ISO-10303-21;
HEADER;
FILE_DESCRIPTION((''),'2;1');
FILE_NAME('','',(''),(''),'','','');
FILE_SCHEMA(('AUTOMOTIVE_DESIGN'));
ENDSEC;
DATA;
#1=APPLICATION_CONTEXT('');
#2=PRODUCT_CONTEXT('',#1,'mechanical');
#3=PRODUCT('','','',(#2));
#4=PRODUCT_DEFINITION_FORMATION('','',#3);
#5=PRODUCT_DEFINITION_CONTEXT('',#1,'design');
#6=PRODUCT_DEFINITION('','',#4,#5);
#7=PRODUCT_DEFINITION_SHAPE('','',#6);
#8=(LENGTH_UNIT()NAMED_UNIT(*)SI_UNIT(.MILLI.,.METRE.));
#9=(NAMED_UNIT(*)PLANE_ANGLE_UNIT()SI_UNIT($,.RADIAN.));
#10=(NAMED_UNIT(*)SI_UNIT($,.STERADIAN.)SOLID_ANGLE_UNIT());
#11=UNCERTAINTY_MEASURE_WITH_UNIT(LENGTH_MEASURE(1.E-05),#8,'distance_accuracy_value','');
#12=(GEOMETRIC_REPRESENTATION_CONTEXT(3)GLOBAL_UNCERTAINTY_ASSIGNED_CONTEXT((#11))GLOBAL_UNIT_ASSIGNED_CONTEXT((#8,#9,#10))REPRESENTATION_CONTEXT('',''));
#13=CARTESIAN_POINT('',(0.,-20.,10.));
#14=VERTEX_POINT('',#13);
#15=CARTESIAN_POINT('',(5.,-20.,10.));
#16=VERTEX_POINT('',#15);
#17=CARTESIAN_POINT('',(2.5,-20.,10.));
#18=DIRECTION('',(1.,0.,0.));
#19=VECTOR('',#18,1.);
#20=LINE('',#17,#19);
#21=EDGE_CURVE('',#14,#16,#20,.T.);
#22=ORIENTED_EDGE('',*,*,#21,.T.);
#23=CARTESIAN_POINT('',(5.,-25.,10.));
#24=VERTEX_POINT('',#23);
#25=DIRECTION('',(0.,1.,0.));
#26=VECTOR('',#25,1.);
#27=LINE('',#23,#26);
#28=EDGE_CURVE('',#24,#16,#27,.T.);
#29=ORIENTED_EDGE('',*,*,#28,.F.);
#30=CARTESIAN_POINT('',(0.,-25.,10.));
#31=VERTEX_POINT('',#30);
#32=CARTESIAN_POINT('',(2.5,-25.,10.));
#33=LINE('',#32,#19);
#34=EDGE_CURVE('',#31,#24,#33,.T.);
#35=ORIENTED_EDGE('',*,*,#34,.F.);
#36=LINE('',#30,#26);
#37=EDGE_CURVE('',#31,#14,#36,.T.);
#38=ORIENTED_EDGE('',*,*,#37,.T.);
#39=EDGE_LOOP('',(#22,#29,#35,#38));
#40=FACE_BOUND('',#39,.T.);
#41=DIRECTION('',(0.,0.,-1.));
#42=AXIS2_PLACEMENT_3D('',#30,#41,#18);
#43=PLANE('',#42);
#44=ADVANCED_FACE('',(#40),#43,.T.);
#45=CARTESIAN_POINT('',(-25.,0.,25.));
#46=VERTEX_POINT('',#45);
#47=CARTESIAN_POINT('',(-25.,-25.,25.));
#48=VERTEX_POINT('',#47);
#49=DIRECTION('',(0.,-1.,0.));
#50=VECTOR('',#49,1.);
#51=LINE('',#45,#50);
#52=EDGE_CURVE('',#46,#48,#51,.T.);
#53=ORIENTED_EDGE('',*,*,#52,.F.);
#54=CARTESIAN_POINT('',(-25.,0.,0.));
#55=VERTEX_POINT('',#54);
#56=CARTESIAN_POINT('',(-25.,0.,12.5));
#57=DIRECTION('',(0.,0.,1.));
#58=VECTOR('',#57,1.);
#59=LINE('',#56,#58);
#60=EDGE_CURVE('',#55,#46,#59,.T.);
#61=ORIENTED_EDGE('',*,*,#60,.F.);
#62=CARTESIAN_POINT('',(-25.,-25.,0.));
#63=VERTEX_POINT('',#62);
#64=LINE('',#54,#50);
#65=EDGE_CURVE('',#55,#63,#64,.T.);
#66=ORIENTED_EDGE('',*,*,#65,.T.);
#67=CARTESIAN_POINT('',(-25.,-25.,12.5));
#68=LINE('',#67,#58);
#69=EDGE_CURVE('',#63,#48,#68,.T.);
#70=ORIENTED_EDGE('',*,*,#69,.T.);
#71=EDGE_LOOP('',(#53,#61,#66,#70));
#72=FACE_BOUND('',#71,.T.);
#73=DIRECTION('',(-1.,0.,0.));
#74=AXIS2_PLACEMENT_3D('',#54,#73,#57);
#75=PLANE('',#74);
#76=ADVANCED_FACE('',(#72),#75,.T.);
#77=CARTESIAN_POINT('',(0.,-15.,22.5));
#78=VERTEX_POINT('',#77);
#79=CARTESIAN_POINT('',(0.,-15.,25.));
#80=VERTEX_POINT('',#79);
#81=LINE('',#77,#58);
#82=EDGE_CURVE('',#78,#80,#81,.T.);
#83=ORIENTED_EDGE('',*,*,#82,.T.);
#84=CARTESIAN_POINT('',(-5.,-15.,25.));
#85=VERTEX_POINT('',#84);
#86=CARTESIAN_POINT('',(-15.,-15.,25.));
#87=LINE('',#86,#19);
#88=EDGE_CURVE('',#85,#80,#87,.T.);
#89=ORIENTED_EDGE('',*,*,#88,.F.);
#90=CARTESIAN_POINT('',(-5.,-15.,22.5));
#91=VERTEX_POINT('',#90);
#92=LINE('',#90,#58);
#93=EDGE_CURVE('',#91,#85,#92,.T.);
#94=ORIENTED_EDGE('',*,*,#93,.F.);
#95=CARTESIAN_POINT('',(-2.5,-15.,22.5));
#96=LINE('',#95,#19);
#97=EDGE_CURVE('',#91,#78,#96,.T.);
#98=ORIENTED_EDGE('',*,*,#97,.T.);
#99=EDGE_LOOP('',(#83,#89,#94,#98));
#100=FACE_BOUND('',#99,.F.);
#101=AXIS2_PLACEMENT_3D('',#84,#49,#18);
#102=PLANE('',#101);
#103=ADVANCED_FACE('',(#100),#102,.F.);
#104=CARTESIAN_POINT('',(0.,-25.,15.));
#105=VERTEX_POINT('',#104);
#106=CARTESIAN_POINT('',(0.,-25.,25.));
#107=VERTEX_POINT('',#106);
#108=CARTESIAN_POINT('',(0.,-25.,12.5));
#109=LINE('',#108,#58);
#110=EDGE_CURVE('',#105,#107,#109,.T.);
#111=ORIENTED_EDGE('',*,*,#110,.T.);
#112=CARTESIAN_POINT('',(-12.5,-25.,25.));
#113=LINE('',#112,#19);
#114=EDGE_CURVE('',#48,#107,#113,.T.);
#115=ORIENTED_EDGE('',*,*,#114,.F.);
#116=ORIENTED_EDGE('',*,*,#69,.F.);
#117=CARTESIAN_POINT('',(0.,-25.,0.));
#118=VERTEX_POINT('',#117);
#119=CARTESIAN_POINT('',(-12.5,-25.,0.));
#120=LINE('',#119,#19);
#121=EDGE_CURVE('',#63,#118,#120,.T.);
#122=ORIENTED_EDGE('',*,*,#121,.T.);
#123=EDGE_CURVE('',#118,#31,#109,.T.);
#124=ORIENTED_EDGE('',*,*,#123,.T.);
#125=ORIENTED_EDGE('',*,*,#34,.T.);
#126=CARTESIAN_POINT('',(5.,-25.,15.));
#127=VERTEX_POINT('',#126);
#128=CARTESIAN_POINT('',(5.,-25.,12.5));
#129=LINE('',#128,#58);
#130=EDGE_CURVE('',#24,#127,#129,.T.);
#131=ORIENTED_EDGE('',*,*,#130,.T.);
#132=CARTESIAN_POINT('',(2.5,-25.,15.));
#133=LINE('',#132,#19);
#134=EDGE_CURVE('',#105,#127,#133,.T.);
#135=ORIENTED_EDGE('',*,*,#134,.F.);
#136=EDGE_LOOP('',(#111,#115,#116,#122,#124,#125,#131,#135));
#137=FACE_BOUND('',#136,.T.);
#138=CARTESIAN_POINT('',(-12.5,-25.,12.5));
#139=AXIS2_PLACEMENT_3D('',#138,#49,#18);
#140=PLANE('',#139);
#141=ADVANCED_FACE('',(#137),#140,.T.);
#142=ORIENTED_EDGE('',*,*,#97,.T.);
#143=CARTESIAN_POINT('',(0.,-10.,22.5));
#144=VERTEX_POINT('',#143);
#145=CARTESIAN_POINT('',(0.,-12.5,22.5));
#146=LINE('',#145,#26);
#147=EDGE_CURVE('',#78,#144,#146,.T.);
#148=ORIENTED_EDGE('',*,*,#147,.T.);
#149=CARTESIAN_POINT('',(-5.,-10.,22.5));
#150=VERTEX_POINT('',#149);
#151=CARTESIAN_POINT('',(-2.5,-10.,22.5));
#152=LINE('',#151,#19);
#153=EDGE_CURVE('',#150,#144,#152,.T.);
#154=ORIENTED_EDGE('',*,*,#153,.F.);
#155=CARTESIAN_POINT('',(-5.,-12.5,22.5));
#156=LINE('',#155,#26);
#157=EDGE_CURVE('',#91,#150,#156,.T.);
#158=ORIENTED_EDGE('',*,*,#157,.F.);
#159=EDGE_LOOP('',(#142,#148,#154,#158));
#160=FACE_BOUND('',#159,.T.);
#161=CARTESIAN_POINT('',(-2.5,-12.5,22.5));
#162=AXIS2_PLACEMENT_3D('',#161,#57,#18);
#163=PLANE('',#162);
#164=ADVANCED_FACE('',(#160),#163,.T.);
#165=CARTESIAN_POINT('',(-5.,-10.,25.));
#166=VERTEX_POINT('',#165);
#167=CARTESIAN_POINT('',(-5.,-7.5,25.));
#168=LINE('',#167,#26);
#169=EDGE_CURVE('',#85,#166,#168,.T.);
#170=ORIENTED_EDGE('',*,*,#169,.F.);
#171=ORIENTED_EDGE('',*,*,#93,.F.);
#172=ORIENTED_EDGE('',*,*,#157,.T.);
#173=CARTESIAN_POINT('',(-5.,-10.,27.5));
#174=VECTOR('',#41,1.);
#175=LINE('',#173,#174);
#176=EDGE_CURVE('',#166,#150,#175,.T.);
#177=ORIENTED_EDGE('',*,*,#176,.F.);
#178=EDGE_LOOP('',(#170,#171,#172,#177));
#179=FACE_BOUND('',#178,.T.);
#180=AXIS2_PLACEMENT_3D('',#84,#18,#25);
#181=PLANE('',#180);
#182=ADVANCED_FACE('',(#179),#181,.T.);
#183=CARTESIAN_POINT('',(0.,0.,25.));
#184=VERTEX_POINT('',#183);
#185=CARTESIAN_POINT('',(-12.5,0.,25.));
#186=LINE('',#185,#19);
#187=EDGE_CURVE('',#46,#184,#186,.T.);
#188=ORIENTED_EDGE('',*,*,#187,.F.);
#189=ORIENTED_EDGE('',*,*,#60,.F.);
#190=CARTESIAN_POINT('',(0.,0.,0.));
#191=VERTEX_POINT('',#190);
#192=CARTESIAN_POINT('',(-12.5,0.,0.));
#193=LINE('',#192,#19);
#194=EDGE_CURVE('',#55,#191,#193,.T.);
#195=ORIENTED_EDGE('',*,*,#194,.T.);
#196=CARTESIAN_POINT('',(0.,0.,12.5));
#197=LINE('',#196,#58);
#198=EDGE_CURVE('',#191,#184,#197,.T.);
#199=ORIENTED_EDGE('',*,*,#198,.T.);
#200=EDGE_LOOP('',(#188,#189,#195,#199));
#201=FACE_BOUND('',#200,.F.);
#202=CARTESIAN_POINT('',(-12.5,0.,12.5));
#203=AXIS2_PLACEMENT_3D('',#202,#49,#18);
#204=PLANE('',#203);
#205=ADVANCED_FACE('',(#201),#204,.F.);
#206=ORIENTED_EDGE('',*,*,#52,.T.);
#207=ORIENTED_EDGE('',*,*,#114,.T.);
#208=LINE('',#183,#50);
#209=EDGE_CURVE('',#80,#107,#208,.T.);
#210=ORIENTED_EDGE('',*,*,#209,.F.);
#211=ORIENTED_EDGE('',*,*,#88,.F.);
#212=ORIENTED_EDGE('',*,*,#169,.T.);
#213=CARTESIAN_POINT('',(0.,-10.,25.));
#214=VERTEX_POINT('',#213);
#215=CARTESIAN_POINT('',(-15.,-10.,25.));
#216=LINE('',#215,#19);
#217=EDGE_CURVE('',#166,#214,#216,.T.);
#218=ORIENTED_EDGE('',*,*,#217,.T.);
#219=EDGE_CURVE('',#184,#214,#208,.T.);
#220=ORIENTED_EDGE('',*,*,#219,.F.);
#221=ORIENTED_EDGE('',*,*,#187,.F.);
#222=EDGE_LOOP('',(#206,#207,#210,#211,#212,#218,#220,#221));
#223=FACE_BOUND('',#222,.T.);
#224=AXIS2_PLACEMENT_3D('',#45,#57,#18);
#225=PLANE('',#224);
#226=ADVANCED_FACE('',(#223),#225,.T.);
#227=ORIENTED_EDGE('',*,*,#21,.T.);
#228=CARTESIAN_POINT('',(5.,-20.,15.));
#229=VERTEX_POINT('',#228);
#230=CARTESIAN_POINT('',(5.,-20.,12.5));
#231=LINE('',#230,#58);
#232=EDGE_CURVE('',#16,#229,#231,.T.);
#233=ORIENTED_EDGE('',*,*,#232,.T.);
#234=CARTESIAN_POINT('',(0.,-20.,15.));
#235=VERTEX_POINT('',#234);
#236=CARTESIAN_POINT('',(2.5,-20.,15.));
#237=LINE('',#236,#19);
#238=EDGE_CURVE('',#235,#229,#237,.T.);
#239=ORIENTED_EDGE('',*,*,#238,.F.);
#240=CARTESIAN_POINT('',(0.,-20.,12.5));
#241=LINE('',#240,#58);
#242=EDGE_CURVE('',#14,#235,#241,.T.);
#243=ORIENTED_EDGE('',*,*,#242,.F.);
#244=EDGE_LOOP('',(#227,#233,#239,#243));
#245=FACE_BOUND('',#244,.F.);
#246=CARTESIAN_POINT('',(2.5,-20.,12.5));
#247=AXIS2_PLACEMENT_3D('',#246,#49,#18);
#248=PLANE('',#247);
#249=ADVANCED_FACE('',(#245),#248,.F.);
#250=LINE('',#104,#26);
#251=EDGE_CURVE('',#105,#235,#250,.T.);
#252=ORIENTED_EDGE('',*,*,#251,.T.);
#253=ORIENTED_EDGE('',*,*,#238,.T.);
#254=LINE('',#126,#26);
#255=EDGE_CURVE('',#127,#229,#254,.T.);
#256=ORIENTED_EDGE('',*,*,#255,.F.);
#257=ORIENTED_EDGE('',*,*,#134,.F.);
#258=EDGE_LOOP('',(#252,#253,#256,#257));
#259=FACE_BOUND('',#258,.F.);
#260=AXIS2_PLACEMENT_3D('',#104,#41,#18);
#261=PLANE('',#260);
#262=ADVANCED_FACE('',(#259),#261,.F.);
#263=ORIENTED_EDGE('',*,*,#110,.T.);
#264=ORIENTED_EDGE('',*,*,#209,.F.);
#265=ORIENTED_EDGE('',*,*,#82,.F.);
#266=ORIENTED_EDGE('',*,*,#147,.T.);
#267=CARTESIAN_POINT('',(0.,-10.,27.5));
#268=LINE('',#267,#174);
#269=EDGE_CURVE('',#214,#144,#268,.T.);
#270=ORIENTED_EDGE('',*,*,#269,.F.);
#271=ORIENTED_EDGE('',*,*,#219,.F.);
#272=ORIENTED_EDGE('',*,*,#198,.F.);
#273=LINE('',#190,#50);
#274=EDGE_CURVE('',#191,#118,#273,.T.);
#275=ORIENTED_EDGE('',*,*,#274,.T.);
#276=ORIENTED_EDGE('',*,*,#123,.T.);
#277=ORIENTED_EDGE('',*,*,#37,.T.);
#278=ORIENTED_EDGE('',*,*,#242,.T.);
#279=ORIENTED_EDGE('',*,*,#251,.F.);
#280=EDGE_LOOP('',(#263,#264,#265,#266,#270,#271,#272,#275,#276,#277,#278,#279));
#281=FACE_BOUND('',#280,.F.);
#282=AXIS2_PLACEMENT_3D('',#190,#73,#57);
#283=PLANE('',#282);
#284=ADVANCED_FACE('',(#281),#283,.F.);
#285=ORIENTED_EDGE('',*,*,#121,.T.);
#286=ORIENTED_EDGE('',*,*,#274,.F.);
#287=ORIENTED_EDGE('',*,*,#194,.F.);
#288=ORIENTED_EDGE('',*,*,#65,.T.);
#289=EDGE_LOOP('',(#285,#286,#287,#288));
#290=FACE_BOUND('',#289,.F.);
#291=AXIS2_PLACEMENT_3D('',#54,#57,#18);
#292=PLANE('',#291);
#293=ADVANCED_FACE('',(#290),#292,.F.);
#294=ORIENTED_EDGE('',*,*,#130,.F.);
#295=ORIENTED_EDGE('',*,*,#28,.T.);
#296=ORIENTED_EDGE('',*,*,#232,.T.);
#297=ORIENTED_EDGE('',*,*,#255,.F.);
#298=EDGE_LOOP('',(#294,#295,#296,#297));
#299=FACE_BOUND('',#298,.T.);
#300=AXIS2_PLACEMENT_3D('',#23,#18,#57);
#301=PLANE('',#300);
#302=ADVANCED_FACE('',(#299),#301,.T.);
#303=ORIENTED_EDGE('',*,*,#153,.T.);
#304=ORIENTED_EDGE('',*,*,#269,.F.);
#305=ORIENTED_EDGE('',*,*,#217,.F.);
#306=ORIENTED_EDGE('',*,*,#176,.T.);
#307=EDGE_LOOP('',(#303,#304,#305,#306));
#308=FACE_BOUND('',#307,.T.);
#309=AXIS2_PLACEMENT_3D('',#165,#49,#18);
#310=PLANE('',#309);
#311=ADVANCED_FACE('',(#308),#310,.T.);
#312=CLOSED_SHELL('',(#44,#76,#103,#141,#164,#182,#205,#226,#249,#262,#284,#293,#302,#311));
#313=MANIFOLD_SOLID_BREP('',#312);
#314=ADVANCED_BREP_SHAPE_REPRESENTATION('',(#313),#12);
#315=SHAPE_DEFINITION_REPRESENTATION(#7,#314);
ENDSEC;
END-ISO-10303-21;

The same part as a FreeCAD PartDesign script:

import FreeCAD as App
import Part
import Sketcher
Q = App.Units.Quantity


def add_polygon(sketch, points):
    """Adds a closed chain of lines whose ends are joined by coincident constraints."""
    first, n = sketch.GeometryCount, len(points)
    for a, b in zip(points, points[1:] + points[:1]):
        sketch.addGeometry(Part.LineSegment(App.Vector(*a, 0), App.Vector(*b, 0)), False)
    for i in range(n):
        sketch.addConstraint(Sketcher.Constraint("Coincident", first + i, 2, first + (i + 1) % n, 1))

doc = App.newDocument("Part")
params = doc.addObject("Spreadsheet::Sheet", "Params")
for row, (alias, value) in enumerate([
    ("sketch1_width", "25 mm"),
    ("pad1_length", "25 mm"),
    ("sketch2_width", "5 mm"),
    ("pad2_length", "5 mm"),
    ("sketch3_width", "5 mm"),
    ("pocket1_length", "5 mm"),
], start=1):
    params.set(f"A{row}", alias)
    params.set(f"B{row}", "=" + value)
    params.setAlias(f"B{row}", alias)

body = doc.addObject("PartDesign::Body", "Body")

sketch1 = body.newObject("Sketcher::SketchObject", "Sketch")
sketch1.AttachmentSupport = (doc.getObject("XZ_Plane"), [""])
sketch1.MapMode = "FlatFace"
add_polygon(sketch1, [(-25, 25), (-25, 0), (0, 0), (0, 25)])
sketch1.addConstraint([
    Sketcher.Constraint("Vertical", 0),
    Sketcher.Constraint("Horizontal", 1),
    Sketcher.Constraint("Vertical", 2),
    Sketcher.Constraint("Horizontal", 3),
    Sketcher.Constraint("Coincident", 1, 2, -1, 1),
    Sketcher.Constraint("Equal", 3, 0),
    Sketcher.Constraint("DistanceX", 1, 1, 1, 2, Q("25 mm")),
])
sketch1.setExpression("Constraints[10]", "Params.sketch1_width")
pad1 = body.newObject("PartDesign::Pad", "Pad")
pad1.Profile = sketch1
pad1.setExpression("Length", "Params.pad1_length")

sketch2 = body.newObject("Sketcher::SketchObject", "Sketch001")
sketch2.AttachmentSupport = (doc.getObject("XZ_Plane"), [""])
sketch2.MapMode = "FlatFace"
sketch2.AttachmentOffset = App.Placement(App.Vector(0, 0, 25), App.Rotation())
add_polygon(sketch2, [(0, 15), (0, 10), (5, 10), (5, 15)])
sketch2.addConstraint([
    Sketcher.Constraint("Vertical", 0),
    Sketcher.Constraint("Horizontal", 1),
    Sketcher.Constraint("Vertical", 2),
    Sketcher.Constraint("Horizontal", 3),
    Sketcher.Constraint("PointOnObject", 0, 2, -2),
    Sketcher.Constraint("Equal", 3, 0),
    Sketcher.Constraint("DistanceX", 1, 1, 1, 2, Q("5 mm")),
    Sketcher.Constraint("DistanceY", -1, 1, 0, 2, Q("10 mm")),
])
sketch2.setExpression("Constraints[10]", "Params.sketch2_width")
pad2 = body.newObject("PartDesign::Pad", "Pad001")
pad2.Profile = sketch2
pad2.setExpression("Length", "Params.pad2_length")
pad2.Reversed = True

sketch3 = body.newObject("Sketcher::SketchObject", "Sketch002")
sketch3.AttachmentSupport = (doc.getObject("XY_Plane"), [""])
sketch3.MapMode = "FlatFace"
sketch3.AttachmentOffset = App.Placement(App.Vector(0, 0, 25), App.Rotation())
add_polygon(sketch3, [(-5, -10), (-5, -15), (0, -15), (0, -10)])
sketch3.addConstraint([
    Sketcher.Constraint("Vertical", 0),
    Sketcher.Constraint("Horizontal", 1),
    Sketcher.Constraint("Vertical", 2),
    Sketcher.Constraint("Horizontal", 3),
    Sketcher.Constraint("PointOnObject", 1, 2, -2),
    Sketcher.Constraint("Equal", 3, 0),
    Sketcher.Constraint("DistanceX", 1, 1, 1, 2, Q("5 mm")),
    Sketcher.Constraint("DistanceY", 0, 2, -1, 1, Q("15 mm")),
])
sketch3.setExpression("Constraints[10]", "Params.sketch3_width")
pocket1 = body.newObject("PartDesign::Pocket", "Pocket")
pocket1.Profile = sketch3
pocket1.setExpression("Length", "Params.pocket1_length")
pocket1.Midplane = True

doc.recompute()
